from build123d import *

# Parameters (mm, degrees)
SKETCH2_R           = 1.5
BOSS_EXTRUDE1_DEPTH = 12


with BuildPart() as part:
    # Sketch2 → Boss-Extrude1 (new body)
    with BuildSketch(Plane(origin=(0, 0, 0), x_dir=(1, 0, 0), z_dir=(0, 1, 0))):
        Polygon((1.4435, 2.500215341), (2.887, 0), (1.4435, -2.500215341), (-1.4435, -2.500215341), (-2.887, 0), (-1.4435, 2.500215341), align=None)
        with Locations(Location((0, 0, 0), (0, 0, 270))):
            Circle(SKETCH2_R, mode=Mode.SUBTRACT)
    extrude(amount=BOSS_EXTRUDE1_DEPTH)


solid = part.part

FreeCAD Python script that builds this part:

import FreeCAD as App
import Part
import Sketcher

V = App.Vector
Q = App.Units.Quantity

doc = App.newDocument("Part")
body = doc.addObject("PartDesign::Body", "Body")

# Sketch on XZ plane
sketch1 = doc.addObject("Sketcher::SketchObject", "Sketch")
body.addObject(sketch1)
sketch1.AttachmentSupport = (doc.XZ_Plane, [""])
sketch1.MapMode = "FlatFace"
sketch1.addGeometry([
    Part.LineSegment(V(2.9, 0, 0), V(1.4, -2.5, 0)),  # 0
    Part.LineSegment(V(1.4, -2.5, 0), V(-1.4, -2.5, 0)),  # 1
    Part.LineSegment(V(-1.4, -2.5, 0), V(-2.9, 0, 0)),  # 2
    Part.LineSegment(V(-2.9, 0, 0), V(-1.4, 2.5, 0)),  # 3
    Part.LineSegment(V(-1.4, 2.5, 0), V(1.4, 2.5, 0)),  # 4
    Part.LineSegment(V(1.4, 2.5, 0), V(2.9, 0, 0)),  # 5
    Part.Circle(V(0, 0, 0), V(0, 0, 1), 1.5),  # 6
], False)
sketch1.addConstraint([
    Sketcher.Constraint("Coincident", 0, 2, 1, 1),
    Sketcher.Constraint("Coincident", 1, 2, 2, 1),
    Sketcher.Constraint("Coincident", 2, 2, 3, 1),
    Sketcher.Constraint("Coincident", 3, 2, 4, 1),
    Sketcher.Constraint("Coincident", 4, 2, 5, 1),
    Sketcher.Constraint("Coincident", 5, 2, 0, 1),
    Sketcher.Constraint("Horizontal", 1),
    Sketcher.Constraint("Horizontal", 4),
    Sketcher.Constraint("Coincident", 6, 3, -1, 1),
    Sketcher.Constraint("Symmetric", 0, 2, 3, 2, -1, 1),
    Sketcher.Constraint("Symmetric", 2, 2, 5, 2, -1, 1),
    Sketcher.Constraint("PointOnObject", 2, 2, -1),
    Sketcher.Constraint("Parallel", 2, 5),
    Sketcher.Constraint("Vertical", 1, 2, 3, 2),
    Sketcher.Constraint("Diameter", 6, Q("3 mm")),
    Sketcher.Constraint("Angle", 0, Q("-120 deg")),
    Sketcher.Constraint("DistanceX", 1, 2, 1, 1, Q("2.887 mm")),
    Sketcher.Constraint("Distance", 0, Q("2.887 mm")),
])
pad1 = doc.addObject("PartDesign::Pad", "Pad")
body.addObject(pad1)
pad1.Profile = sketch1
pad1.Length = 12
pad1.Reversed = True

doc.recompute()
